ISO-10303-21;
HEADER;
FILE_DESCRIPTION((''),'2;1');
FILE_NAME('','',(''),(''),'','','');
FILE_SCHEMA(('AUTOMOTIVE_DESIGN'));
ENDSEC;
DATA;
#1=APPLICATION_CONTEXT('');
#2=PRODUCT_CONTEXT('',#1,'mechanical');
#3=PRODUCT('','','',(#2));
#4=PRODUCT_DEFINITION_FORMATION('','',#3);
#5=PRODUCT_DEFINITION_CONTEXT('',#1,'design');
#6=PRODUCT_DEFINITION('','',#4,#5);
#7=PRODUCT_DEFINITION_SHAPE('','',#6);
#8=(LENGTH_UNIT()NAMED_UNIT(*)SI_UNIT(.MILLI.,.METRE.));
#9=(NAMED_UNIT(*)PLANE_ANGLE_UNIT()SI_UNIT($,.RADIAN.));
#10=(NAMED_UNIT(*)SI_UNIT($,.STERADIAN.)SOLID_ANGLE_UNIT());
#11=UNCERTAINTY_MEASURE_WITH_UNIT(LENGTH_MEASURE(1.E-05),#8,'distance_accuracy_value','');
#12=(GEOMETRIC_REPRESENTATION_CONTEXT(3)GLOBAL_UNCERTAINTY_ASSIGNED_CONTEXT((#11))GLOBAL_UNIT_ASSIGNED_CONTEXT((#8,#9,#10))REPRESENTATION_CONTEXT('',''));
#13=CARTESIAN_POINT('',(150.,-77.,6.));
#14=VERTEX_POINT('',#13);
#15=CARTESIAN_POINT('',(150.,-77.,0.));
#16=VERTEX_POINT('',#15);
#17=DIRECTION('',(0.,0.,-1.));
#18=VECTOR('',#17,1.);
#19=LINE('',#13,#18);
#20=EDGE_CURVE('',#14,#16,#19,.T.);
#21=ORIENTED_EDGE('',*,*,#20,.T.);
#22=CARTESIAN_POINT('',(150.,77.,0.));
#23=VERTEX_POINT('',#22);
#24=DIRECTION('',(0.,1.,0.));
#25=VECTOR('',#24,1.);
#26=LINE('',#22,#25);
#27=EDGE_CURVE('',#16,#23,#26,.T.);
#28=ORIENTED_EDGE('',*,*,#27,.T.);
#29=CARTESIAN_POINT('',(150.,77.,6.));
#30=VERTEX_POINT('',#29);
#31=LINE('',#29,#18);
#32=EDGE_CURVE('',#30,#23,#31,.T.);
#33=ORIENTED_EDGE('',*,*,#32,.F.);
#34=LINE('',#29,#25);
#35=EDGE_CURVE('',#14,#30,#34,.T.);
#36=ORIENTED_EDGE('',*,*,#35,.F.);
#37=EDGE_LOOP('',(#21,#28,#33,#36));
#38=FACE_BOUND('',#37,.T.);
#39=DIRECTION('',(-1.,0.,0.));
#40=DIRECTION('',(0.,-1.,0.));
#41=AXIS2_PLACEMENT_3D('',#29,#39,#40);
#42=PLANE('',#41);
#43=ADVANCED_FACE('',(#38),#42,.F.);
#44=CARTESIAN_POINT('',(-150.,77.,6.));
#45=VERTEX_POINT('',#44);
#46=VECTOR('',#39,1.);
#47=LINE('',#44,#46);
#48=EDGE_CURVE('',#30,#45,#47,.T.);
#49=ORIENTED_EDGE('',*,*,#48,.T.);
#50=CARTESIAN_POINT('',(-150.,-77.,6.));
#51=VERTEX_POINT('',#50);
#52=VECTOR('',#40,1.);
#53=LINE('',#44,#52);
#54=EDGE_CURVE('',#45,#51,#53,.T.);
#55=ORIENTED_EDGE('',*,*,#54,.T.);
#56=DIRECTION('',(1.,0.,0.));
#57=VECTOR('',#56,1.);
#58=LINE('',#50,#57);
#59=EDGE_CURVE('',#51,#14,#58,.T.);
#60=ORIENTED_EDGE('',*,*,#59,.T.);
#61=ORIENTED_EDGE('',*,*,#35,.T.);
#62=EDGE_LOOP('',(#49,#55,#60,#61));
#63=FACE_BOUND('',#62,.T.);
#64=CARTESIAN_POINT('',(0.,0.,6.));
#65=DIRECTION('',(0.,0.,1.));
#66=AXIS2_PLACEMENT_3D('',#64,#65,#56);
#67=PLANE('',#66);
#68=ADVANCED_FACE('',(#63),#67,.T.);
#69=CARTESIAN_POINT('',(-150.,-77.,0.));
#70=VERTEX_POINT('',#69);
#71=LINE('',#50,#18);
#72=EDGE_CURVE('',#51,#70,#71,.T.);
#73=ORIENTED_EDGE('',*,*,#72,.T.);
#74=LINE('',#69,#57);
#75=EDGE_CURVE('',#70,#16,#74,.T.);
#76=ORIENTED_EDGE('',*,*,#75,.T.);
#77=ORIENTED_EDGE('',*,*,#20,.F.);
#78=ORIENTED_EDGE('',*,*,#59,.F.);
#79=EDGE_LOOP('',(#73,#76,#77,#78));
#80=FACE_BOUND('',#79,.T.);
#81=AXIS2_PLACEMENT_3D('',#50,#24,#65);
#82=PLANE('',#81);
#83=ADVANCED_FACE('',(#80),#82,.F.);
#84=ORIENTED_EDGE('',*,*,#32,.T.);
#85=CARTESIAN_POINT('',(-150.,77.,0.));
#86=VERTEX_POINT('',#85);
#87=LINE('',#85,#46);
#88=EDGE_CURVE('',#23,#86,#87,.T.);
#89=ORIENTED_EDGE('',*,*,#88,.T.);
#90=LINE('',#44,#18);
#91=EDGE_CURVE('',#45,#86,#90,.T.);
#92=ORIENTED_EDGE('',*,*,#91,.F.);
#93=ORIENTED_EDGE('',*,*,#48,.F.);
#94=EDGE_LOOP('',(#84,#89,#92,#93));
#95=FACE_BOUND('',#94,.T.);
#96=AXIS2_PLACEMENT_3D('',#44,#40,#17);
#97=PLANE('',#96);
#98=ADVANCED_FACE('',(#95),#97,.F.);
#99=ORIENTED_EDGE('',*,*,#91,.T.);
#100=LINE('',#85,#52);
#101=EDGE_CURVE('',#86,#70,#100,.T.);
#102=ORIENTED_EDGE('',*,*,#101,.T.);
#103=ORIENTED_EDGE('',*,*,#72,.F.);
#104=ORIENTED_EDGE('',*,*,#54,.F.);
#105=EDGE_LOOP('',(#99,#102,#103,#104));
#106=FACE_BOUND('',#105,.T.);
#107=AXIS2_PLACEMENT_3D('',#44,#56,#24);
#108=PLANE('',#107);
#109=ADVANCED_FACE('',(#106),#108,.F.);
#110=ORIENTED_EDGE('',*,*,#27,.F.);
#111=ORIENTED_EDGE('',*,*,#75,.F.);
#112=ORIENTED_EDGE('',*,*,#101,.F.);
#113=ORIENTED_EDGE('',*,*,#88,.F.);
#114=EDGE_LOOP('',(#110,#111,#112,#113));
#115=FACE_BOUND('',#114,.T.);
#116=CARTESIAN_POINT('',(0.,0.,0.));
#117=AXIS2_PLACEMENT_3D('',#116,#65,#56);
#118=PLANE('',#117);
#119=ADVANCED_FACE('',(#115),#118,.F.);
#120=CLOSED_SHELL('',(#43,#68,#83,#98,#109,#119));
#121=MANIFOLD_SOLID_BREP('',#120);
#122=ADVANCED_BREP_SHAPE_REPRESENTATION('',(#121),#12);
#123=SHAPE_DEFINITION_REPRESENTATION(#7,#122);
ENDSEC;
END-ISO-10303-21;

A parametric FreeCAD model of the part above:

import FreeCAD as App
import Part
import Sketcher


def add_polygon(sketch, points):
    """Adds a closed chain of lines whose ends are joined by coincident constraints."""
    first, n = sketch.GeometryCount, len(points)
    for a, b in zip(points, points[1:] + points[:1]):
        sketch.addGeometry(Part.LineSegment(App.Vector(*a, 0), App.Vector(*b, 0)), False)
    for i in range(n):
        sketch.addConstraint(Sketcher.Constraint("Coincident", first + i, 2, first + (i + 1) % n, 1))

doc = App.newDocument("Part")
body = doc.addObject("PartDesign::Body", "Body")

# Sketch on XY plane
sketch1 = body.newObject("Sketcher::SketchObject", "Sketch")
sketch1.AttachmentSupport = (doc.getObject("XY_Plane"), [""])
sketch1.MapMode = "FlatFace"
add_polygon(sketch1, [(-150, 77), (-150, -77), (150, -77), (150, 77)])  # lines 0-3
sketch1.addConstraint(Sketcher.Constraint("Vertical", 0))
sketch1.addConstraint(Sketcher.Constraint("Horizontal", 1))
sketch1.addConstraint(Sketcher.Constraint("Vertical", 2))
sketch1.addConstraint(Sketcher.Constraint("Horizontal", 3))
sketch1.addConstraint(Sketcher.Constraint("Symmetric", 0, 2, 2, 2, -1, 1))
sketch1.addConstraint(Sketcher.Constraint("DistanceX", 1, 1, 1, 2, 300.0))
sketch1.addConstraint(Sketcher.Constraint("DistanceY", 0, 2, 0, 1, 154.0))
pad1 = body.newObject("PartDesign::Pad", "Pad")
pad1.Profile = sketch1
pad1.Length = 6

doc.recompute()
